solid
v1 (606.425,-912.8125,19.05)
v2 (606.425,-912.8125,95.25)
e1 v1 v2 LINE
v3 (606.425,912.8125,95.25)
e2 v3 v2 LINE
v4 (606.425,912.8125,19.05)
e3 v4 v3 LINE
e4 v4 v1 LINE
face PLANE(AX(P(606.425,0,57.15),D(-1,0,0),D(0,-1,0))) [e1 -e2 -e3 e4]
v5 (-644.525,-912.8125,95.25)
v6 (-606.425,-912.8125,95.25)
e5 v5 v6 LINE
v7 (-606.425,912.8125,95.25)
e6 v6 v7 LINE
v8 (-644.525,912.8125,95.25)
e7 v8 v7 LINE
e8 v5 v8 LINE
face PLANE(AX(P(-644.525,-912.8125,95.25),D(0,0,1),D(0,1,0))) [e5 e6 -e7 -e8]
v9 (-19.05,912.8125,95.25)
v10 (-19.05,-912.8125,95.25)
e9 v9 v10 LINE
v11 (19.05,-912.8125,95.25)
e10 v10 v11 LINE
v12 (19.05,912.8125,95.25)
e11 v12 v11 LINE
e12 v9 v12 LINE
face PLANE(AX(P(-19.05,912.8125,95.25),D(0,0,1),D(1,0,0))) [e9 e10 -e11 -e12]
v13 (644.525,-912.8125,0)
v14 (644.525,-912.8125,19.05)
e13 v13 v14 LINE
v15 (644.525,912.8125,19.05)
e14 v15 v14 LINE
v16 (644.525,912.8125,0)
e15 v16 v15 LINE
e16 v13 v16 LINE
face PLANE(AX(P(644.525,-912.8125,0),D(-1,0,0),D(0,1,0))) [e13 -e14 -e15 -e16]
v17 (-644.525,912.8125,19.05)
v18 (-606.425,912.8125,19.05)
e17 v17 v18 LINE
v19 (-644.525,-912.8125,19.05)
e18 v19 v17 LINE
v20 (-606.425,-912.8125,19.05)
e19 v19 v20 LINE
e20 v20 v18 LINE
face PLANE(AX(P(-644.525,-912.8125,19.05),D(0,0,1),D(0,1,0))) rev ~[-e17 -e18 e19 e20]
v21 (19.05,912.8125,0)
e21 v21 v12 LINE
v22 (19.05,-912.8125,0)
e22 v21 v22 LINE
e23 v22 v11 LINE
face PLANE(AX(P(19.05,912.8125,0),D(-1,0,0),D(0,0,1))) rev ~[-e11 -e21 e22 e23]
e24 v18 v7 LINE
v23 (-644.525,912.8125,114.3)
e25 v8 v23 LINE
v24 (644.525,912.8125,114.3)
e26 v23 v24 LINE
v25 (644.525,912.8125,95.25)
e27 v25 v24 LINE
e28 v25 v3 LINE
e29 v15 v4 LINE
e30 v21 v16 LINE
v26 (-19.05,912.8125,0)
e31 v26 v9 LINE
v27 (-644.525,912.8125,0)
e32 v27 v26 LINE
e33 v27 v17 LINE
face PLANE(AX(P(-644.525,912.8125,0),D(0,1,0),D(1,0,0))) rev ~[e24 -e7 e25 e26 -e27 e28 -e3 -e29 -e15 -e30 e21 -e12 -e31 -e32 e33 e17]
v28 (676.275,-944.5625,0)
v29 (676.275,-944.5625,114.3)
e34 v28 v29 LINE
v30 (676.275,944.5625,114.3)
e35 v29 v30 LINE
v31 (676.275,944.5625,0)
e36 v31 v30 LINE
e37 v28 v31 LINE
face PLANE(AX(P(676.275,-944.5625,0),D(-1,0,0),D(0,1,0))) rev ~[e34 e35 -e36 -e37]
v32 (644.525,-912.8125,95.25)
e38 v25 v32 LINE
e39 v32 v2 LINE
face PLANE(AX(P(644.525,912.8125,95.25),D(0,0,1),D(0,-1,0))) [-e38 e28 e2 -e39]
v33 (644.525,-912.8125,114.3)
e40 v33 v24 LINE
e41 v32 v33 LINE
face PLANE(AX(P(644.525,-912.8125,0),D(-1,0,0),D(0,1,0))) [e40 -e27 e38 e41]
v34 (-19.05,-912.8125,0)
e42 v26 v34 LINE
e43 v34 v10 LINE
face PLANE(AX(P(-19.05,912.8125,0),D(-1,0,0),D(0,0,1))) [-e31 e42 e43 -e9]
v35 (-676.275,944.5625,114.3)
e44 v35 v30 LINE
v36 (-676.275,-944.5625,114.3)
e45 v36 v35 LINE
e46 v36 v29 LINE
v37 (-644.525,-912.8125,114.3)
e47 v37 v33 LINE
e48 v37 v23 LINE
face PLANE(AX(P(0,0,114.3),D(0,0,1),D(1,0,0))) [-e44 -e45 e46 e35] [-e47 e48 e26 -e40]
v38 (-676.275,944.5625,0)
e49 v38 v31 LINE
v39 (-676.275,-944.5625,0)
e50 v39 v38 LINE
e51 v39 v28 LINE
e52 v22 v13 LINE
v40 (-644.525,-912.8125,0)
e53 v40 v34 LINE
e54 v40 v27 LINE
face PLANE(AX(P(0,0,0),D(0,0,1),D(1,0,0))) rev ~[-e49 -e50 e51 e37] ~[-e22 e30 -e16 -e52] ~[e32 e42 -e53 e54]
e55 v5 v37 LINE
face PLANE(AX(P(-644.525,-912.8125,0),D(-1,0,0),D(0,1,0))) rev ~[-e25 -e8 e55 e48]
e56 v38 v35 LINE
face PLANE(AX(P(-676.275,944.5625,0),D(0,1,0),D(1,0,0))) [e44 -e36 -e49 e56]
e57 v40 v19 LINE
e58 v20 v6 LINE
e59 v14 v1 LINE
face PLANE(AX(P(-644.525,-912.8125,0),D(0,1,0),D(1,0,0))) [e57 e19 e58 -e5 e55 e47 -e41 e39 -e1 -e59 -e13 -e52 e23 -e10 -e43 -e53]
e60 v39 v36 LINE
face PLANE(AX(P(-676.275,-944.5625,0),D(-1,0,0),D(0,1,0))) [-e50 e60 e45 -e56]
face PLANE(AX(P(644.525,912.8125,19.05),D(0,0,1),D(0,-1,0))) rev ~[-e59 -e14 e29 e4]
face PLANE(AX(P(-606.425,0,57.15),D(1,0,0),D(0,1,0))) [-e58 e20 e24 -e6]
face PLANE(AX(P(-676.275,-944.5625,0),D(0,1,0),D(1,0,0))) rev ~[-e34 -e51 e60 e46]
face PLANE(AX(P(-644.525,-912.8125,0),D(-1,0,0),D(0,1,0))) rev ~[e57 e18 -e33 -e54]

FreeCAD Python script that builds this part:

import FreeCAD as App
import Part
import Sketcher
from FreeCAD import Vector
Q = App.Units.Quantity


def add_polygon(sketch, points):
    """Adds a closed chain of lines whose ends are joined by coincident constraints."""
    first, n = sketch.GeometryCount, len(points)
    for a, b in zip(points, points[1:] + points[:1]):
        sketch.addGeometry(Part.LineSegment(App.Vector(*a, 0), App.Vector(*b, 0)), False)
    for i in range(n):
        sketch.addConstraint(Sketcher.Constraint("Coincident", first + i, 2, first + (i + 1) % n, 1))

doc = App.newDocument("Part")
body = doc.addObject("PartDesign::Body", "Body")

sketch1 = body.newObject("Sketcher::SketchObject", "Sketch")
sketch1.AttachmentSupport = (doc.getObject("XY_Plane"), [""])
sketch1.MapMode = "FlatFace"
add_polygon(sketch1, [(-676, 945), (-676, -945), (676, -945), (676, 945)])
add_polygon(sketch1, [(645, -913), (-645, -913), (-645, 913), (645, 913)])
sketch1.addConstraint(Sketcher.Constraint("Vertical", 0))
sketch1.addConstraint(Sketcher.Constraint("Horizontal", 1))
sketch1.addConstraint(Sketcher.Constraint("Vertical", 2))
sketch1.addConstraint(Sketcher.Constraint("Horizontal", 3))
sketch1.addConstraint(Sketcher.Constraint("Horizontal", 4))
sketch1.addConstraint(Sketcher.Constraint("Vertical", 5))
sketch1.addConstraint(Sketcher.Constraint("Horizontal", 6))
sketch1.addConstraint(Sketcher.Constraint("Vertical", 7))
sketch1.addConstraint(Sketcher.Constraint("Symmetric", 0, 2, 2, 2, -1, 1))
sketch1.addConstraint(Sketcher.Constraint("Symmetric", 4, 2, 6, 2, -1, 1))
sketch1.addConstraint(Sketcher.Constraint("DistanceX", 4, 2, 1, 2, Q("52 in")))
sketch1.addConstraint(Sketcher.Constraint("DistanceX", 1, 1, 1, 2, Q("53.25 in")))
sketch1.addConstraint(Sketcher.Constraint("DistanceY", 0, 2, 0, 1, Q("74.375 in")))
sketch1.addConstraint(Sketcher.Constraint("DistanceY", 5, 1, 5, 2, Q("71.875 in")))
pad1 = body.newObject("PartDesign::Pad", "Pad")
pad1.Profile = sketch1
pad1.Length = Q("4.5 in")

sketch2 = body.newObject("Sketcher::SketchObject", "Sketch001")
sketch2.AttachmentSupport = (doc.getObject("YZ_Plane"), [""])
sketch2.MapMode = "FlatFace"
sketch2.AttachmentOffset = App.Placement(Vector(0, 0, 25.375 * 25.4), App.Rotation())
add_polygon(sketch2, [(913, 95), (913, 19), (-913, 19), (-913, 95)])
sketch2.addConstraint(Sketcher.Constraint("Vertical", 0))
sketch2.addConstraint(Sketcher.Constraint("Horizontal", 1))
sketch2.addConstraint(Sketcher.Constraint("Vertical", 2))
sketch2.addConstraint(Sketcher.Constraint("Horizontal", 3))
sketch2.addConstraint(Sketcher.Constraint("DistanceY", 0, 2, 0, 1, Q("3 in")))
sketch2.addConstraint(Sketcher.Constraint("DistanceX", 1, 2, 1, 1, Q("71.875 in")))
sketch2.addConstraint(Sketcher.Constraint("DistanceY", -1, 1, 0, 2, Q("0.75 in")))
sketch2.addConstraint(Sketcher.Constraint("DistanceX", -1, 1, 0, 2, Q("35.9375 in")))
pad2 = body.newObject("PartDesign::Pad", "Pad001")
pad2.Profile = sketch2
pad2.Length = Q("1.5 in")
pad2.Reversed = True

sketch3 = body.newObject("Sketcher::SketchObject", "Sketch002")
sketch3.AttachmentSupport = (doc.getObject("YZ_Plane"), [""])
sketch3.MapMode = "FlatFace"
sketch3.AttachmentOffset = App.Placement(Vector(0, 0, -25.375 * 25.4), App.Rotation())
add_polygon(sketch3, [(-913, 95), (-913, 19), (913, 19), (913, 95)])
sketch3.addConstraint(Sketcher.Constraint("Vertical", 0))
sketch3.addConstraint(Sketcher.Constraint("Horizontal", 1))
sketch3.addConstraint(Sketcher.Constraint("Vertical", 2))
sketch3.addConstraint(Sketcher.Constraint("Horizontal", 3))
sketch3.addConstraint(Sketcher.Constraint("DistanceY", 0, 2, 0, 1, Q("3 in")))
sketch3.addConstraint(Sketcher.Constraint("DistanceX", 1, 1, 1, 2, Q("71.875 in")))
sketch3.addConstraint(Sketcher.Constraint("DistanceY", -1, 1, 0, 2, Q("0.75 in")))
sketch3.addConstraint(Sketcher.Constraint("DistanceX", 0, 2, -1, 1, Q("35.9375 in")))
pad3 = body.newObject("PartDesign::Pad", "Pad002")
pad3.Profile = sketch3
pad3.Length = Q("1.5 in")

sketch4 = body.newObject("Sketcher::SketchObject", "Sketch003")
sketch4.AttachmentSupport = (doc.getObject("XZ_Plane"), [""])
sketch4.MapMode = "FlatFace"
sketch4.AttachmentOffset = App.Placement(Vector(0, 0, -35.9375 * 25.4), App.Rotation())
add_polygon(sketch4, [(-19, 95), (-19, 0), (19, 0), (19, 95)])
sketch4.addConstraint(Sketcher.Constraint("Vertical", 0))
sketch4.addConstraint(Sketcher.Constraint("Horizontal", 1))
sketch4.addConstraint(Sketcher.Constraint("Vertical", 2))
sketch4.addConstraint(Sketcher.Constraint("Horizontal", 3))
sketch4.addConstraint(Sketcher.Constraint("Symmetric", 0, 2, 1, 2, -1, 1))
sketch4.addConstraint(Sketcher.Constraint("DistanceX", 1, 1, 1, 2, Q("1.5 in")))
sketch4.addConstraint(Sketcher.Constraint("DistanceY", 0, 2, 0, 1, Q("3.75 in")))
pad4 = body.newObject("PartDesign::Pad", "Pad003")
pad4.Profile = sketch4
pad4.Type = "UpToLast"

doc.recompute()
